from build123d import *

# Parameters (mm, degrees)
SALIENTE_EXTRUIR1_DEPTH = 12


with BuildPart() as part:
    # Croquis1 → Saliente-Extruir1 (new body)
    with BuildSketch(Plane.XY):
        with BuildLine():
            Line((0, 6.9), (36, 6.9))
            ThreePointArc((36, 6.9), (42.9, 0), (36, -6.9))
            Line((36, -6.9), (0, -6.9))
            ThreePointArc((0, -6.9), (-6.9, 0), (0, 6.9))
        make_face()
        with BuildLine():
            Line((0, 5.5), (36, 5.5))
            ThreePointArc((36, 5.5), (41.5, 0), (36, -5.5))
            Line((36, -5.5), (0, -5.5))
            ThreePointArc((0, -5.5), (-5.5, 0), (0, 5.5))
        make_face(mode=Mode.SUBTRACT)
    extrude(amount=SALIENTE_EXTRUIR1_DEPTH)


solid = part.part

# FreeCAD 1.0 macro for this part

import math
import FreeCAD as App
import Part
import Sketcher

V = App.Vector

doc = App.newDocument("Part")
params = doc.addObject("Spreadsheet::Sheet", "Params")
for row, (alias, value) in enumerate([
    ("sketch1_radius", "6.9 mm"),
    ("sketch1_radius2", "5.5 mm"),
    ("sketch1_width", "36 mm"),
    ("pad1_length", "12 mm"),
], start=1):
    params.set(f"A{row}", alias)
    params.set(f"B{row}", "=" + value)
    params.setAlias(f"B{row}", alias)

body = doc.addObject("PartDesign::Body", "Body")

# Sketch on XY plane
sketch1 = doc.addObject("Sketcher::SketchObject", "Sketch")
body.addObject(sketch1)
sketch1.AttachmentSupport = (doc.XY_Plane, [""])
sketch1.MapMode = "FlatFace"
sketch1.addGeometry([
    Part.LineSegment(V(36, 7, 0), V(0, 7, 0)),  # 0
    Part.ArcOfCircle(Part.Circle(V(0, 0, 0), V(0, 0, 1), 7), math.radians(90), math.radians(270)),  # 1
    Part.LineSegment(V(0, -7, 0), V(36, -7, 0)),  # 2
    Part.ArcOfCircle(Part.Circle(V(36, 0, 0), V(0, 0, 1), 7), math.radians(-90), math.radians(90)),  # 3
    Part.LineSegment(V(0, 6, 0), V(36, 6, 0)),  # 4
    Part.ArcOfCircle(Part.Circle(V(36, 0, 0), V(0, 0, 1), 6), math.radians(-90), math.radians(90)),  # 5
    Part.LineSegment(V(36, -6, 0), V(0, -6, 0)),  # 6
    Part.ArcOfCircle(Part.Circle(V(0, 0, 0), V(0, 0, 1), 6), math.radians(90), math.radians(270)),  # 7
], False)
sketch1.addConstraint([
    Sketcher.Constraint("Tangent", 0, 2, 1, 1),
    Sketcher.Constraint("Tangent", 1, 2, 2, 1),
    Sketcher.Constraint("Tangent", 2, 2, 3, 1),
    Sketcher.Constraint("Tangent", 3, 2, 0, 1),
    Sketcher.Constraint("Tangent", 4, 2, 5, 2),
    Sketcher.Constraint("Tangent", 5, 1, 6, 1),
    Sketcher.Constraint("Tangent", 6, 2, 7, 2),
    Sketcher.Constraint("Tangent", 7, 1, 4, 1),
    Sketcher.Constraint("Horizontal", 0),
    Sketcher.Constraint("Horizontal", 2),
    Sketcher.Constraint("Horizontal", 4),
    Sketcher.Constraint("Horizontal", 6),
    Sketcher.Constraint("Coincident", 1, 3, -1, 1),
    Sketcher.Constraint("Coincident", 7, 3, -1, 1),
    Sketcher.Constraint("Vertical", 5, 3, 2, 2),
    Sketcher.Constraint("Radius", 1, 6.9),
    Sketcher.Constraint("Radius", 5, 5.5),
    Sketcher.Constraint("DistanceX", 0, 2, 0, 1, 36.0),
])
sketch1.setExpression("Constraints[15]", "Params.sketch1_radius")
sketch1.setExpression("Constraints[16]", "Params.sketch1_radius2")
sketch1.setExpression("Constraints[17]", "Params.sketch1_width")
pad1 = doc.addObject("PartDesign::Pad", "Pad")
body.addObject(pad1)
pad1.Profile = sketch1
pad1.setExpression("Length", "Params.pad1_length")

doc.recompute()
